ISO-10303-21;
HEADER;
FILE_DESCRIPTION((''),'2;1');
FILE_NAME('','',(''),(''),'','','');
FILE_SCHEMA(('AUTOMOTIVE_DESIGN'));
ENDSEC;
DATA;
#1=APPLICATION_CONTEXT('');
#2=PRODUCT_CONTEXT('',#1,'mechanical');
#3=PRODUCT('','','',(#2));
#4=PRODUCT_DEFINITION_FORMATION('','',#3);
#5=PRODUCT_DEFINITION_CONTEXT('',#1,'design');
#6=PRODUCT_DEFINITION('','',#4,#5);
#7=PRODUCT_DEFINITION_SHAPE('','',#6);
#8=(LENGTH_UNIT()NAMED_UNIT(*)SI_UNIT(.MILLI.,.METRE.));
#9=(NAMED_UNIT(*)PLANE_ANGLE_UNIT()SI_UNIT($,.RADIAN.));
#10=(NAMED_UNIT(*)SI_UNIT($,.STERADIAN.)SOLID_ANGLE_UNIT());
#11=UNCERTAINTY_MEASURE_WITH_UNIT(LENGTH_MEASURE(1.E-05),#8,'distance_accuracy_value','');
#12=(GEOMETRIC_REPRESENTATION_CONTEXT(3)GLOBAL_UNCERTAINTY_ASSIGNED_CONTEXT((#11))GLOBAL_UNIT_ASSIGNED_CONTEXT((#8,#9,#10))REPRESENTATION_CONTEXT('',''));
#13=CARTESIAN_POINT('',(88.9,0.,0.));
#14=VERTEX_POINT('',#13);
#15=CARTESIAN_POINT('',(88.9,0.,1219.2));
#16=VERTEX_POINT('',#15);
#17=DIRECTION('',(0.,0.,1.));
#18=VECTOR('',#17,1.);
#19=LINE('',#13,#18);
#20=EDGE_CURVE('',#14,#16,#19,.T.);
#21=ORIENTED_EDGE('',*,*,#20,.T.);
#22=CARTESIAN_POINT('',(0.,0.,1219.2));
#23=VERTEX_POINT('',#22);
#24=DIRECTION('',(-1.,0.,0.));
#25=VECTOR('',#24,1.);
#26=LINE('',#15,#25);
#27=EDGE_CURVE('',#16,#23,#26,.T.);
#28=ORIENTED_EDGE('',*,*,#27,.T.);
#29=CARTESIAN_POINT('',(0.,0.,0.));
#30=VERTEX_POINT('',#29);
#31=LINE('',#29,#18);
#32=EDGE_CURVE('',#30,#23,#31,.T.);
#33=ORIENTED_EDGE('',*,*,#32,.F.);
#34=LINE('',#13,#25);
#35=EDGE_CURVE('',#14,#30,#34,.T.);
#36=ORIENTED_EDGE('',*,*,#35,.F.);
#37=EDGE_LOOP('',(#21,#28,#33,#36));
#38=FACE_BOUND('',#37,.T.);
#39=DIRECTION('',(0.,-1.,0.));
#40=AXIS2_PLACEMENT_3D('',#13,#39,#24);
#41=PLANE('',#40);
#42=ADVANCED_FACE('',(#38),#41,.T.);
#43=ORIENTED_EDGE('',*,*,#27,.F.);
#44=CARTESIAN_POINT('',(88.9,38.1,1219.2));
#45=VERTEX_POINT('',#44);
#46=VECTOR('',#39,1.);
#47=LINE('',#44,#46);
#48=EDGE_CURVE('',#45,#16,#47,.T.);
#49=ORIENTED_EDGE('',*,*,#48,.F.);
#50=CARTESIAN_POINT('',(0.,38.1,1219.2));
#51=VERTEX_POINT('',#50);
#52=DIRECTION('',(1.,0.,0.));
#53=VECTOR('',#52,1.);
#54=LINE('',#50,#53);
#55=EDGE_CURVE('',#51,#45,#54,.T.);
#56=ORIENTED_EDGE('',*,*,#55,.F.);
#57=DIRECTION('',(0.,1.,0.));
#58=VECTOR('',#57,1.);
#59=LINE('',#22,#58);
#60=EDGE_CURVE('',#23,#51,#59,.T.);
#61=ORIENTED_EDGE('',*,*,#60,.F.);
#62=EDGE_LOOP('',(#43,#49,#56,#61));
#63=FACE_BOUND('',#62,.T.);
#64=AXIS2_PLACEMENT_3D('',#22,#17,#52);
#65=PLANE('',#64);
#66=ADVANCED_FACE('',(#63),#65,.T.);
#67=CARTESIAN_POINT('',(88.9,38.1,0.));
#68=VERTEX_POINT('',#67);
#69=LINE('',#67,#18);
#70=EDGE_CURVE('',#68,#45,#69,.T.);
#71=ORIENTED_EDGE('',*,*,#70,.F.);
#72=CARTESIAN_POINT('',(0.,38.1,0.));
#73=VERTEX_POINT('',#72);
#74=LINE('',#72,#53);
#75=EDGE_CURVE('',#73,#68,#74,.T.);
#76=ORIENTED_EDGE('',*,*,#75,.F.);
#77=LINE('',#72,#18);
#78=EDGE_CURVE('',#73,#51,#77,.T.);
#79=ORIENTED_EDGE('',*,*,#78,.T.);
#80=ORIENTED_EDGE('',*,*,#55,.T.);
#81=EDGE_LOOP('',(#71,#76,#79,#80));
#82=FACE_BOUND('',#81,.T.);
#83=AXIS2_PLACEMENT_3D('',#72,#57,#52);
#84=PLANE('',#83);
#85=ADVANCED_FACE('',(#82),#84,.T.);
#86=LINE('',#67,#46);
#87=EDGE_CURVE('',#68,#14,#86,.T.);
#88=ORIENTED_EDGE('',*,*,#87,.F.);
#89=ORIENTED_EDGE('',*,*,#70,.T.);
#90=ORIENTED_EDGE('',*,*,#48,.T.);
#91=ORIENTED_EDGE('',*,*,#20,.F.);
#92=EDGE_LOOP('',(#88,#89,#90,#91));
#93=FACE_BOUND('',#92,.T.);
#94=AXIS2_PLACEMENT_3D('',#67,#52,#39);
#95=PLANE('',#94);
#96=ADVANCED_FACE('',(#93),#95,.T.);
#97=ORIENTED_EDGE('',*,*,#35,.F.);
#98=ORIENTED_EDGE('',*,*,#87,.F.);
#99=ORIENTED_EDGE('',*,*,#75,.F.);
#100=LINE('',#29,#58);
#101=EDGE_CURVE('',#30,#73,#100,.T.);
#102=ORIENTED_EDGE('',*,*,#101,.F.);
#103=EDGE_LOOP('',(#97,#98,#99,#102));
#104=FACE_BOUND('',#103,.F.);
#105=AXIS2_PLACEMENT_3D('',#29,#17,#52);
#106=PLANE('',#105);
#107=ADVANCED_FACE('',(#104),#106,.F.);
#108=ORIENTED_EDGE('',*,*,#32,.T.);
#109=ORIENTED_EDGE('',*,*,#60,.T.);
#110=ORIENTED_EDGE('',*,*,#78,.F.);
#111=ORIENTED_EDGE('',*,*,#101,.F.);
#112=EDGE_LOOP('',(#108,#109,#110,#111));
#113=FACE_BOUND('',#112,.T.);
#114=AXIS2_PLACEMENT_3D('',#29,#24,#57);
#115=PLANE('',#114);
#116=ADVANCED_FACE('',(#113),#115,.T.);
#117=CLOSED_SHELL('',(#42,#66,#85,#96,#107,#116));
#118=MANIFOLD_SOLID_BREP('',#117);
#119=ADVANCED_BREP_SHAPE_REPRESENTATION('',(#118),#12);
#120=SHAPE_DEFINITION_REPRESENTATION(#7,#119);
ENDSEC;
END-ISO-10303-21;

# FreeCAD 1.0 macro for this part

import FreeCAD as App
import Part
import Sketcher

V = App.Vector
Q = App.Units.Quantity


def add_polygon(sketch, points):
    """Adds a closed chain of lines whose ends are joined by coincident constraints."""
    first, n = sketch.GeometryCount, len(points)
    for a, b in zip(points, points[1:] + points[:1]):
        sketch.addGeometry(Part.LineSegment(App.Vector(*a, 0), App.Vector(*b, 0)), False)
    for i in range(n):
        sketch.addConstraint(Sketcher.Constraint("Coincident", first + i, 2, first + (i + 1) % n, 1))

doc = App.newDocument("Part")
body = doc.addObject("PartDesign::Body", "Body")

# Sketch on XY plane
sketch1 = body.newObject("Sketcher::SketchObject", "Sketch")
sketch1.AttachmentSupport = (doc.getObject("XY_Plane"), [""])
sketch1.MapMode = "FlatFace"
add_polygon(sketch1, [(0, 38), (0, 0), (89, 0), (89, 38)])  # lines 0-3
sketch1.addConstraint(Sketcher.Constraint("Vertical", 0))
sketch1.addConstraint(Sketcher.Constraint("Horizontal", 1))
sketch1.addConstraint(Sketcher.Constraint("Vertical", 2))
sketch1.addConstraint(Sketcher.Constraint("Horizontal", 3))
sketch1.addConstraint(Sketcher.Constraint("Coincident", 0, 2, -1, 1))
sketch1.addConstraint(Sketcher.Constraint("DistanceX", 1, 1, 1, 2, Q("3.5 in")))
sketch1.addConstraint(Sketcher.Constraint("DistanceY", 0, 2, 0, 1, Q("1.5 in")))
pad1 = body.newObject("PartDesign::Pad", "Pad")
pad1.Profile = sketch1
pad1.Length = Q("48 in")

doc.recompute()
